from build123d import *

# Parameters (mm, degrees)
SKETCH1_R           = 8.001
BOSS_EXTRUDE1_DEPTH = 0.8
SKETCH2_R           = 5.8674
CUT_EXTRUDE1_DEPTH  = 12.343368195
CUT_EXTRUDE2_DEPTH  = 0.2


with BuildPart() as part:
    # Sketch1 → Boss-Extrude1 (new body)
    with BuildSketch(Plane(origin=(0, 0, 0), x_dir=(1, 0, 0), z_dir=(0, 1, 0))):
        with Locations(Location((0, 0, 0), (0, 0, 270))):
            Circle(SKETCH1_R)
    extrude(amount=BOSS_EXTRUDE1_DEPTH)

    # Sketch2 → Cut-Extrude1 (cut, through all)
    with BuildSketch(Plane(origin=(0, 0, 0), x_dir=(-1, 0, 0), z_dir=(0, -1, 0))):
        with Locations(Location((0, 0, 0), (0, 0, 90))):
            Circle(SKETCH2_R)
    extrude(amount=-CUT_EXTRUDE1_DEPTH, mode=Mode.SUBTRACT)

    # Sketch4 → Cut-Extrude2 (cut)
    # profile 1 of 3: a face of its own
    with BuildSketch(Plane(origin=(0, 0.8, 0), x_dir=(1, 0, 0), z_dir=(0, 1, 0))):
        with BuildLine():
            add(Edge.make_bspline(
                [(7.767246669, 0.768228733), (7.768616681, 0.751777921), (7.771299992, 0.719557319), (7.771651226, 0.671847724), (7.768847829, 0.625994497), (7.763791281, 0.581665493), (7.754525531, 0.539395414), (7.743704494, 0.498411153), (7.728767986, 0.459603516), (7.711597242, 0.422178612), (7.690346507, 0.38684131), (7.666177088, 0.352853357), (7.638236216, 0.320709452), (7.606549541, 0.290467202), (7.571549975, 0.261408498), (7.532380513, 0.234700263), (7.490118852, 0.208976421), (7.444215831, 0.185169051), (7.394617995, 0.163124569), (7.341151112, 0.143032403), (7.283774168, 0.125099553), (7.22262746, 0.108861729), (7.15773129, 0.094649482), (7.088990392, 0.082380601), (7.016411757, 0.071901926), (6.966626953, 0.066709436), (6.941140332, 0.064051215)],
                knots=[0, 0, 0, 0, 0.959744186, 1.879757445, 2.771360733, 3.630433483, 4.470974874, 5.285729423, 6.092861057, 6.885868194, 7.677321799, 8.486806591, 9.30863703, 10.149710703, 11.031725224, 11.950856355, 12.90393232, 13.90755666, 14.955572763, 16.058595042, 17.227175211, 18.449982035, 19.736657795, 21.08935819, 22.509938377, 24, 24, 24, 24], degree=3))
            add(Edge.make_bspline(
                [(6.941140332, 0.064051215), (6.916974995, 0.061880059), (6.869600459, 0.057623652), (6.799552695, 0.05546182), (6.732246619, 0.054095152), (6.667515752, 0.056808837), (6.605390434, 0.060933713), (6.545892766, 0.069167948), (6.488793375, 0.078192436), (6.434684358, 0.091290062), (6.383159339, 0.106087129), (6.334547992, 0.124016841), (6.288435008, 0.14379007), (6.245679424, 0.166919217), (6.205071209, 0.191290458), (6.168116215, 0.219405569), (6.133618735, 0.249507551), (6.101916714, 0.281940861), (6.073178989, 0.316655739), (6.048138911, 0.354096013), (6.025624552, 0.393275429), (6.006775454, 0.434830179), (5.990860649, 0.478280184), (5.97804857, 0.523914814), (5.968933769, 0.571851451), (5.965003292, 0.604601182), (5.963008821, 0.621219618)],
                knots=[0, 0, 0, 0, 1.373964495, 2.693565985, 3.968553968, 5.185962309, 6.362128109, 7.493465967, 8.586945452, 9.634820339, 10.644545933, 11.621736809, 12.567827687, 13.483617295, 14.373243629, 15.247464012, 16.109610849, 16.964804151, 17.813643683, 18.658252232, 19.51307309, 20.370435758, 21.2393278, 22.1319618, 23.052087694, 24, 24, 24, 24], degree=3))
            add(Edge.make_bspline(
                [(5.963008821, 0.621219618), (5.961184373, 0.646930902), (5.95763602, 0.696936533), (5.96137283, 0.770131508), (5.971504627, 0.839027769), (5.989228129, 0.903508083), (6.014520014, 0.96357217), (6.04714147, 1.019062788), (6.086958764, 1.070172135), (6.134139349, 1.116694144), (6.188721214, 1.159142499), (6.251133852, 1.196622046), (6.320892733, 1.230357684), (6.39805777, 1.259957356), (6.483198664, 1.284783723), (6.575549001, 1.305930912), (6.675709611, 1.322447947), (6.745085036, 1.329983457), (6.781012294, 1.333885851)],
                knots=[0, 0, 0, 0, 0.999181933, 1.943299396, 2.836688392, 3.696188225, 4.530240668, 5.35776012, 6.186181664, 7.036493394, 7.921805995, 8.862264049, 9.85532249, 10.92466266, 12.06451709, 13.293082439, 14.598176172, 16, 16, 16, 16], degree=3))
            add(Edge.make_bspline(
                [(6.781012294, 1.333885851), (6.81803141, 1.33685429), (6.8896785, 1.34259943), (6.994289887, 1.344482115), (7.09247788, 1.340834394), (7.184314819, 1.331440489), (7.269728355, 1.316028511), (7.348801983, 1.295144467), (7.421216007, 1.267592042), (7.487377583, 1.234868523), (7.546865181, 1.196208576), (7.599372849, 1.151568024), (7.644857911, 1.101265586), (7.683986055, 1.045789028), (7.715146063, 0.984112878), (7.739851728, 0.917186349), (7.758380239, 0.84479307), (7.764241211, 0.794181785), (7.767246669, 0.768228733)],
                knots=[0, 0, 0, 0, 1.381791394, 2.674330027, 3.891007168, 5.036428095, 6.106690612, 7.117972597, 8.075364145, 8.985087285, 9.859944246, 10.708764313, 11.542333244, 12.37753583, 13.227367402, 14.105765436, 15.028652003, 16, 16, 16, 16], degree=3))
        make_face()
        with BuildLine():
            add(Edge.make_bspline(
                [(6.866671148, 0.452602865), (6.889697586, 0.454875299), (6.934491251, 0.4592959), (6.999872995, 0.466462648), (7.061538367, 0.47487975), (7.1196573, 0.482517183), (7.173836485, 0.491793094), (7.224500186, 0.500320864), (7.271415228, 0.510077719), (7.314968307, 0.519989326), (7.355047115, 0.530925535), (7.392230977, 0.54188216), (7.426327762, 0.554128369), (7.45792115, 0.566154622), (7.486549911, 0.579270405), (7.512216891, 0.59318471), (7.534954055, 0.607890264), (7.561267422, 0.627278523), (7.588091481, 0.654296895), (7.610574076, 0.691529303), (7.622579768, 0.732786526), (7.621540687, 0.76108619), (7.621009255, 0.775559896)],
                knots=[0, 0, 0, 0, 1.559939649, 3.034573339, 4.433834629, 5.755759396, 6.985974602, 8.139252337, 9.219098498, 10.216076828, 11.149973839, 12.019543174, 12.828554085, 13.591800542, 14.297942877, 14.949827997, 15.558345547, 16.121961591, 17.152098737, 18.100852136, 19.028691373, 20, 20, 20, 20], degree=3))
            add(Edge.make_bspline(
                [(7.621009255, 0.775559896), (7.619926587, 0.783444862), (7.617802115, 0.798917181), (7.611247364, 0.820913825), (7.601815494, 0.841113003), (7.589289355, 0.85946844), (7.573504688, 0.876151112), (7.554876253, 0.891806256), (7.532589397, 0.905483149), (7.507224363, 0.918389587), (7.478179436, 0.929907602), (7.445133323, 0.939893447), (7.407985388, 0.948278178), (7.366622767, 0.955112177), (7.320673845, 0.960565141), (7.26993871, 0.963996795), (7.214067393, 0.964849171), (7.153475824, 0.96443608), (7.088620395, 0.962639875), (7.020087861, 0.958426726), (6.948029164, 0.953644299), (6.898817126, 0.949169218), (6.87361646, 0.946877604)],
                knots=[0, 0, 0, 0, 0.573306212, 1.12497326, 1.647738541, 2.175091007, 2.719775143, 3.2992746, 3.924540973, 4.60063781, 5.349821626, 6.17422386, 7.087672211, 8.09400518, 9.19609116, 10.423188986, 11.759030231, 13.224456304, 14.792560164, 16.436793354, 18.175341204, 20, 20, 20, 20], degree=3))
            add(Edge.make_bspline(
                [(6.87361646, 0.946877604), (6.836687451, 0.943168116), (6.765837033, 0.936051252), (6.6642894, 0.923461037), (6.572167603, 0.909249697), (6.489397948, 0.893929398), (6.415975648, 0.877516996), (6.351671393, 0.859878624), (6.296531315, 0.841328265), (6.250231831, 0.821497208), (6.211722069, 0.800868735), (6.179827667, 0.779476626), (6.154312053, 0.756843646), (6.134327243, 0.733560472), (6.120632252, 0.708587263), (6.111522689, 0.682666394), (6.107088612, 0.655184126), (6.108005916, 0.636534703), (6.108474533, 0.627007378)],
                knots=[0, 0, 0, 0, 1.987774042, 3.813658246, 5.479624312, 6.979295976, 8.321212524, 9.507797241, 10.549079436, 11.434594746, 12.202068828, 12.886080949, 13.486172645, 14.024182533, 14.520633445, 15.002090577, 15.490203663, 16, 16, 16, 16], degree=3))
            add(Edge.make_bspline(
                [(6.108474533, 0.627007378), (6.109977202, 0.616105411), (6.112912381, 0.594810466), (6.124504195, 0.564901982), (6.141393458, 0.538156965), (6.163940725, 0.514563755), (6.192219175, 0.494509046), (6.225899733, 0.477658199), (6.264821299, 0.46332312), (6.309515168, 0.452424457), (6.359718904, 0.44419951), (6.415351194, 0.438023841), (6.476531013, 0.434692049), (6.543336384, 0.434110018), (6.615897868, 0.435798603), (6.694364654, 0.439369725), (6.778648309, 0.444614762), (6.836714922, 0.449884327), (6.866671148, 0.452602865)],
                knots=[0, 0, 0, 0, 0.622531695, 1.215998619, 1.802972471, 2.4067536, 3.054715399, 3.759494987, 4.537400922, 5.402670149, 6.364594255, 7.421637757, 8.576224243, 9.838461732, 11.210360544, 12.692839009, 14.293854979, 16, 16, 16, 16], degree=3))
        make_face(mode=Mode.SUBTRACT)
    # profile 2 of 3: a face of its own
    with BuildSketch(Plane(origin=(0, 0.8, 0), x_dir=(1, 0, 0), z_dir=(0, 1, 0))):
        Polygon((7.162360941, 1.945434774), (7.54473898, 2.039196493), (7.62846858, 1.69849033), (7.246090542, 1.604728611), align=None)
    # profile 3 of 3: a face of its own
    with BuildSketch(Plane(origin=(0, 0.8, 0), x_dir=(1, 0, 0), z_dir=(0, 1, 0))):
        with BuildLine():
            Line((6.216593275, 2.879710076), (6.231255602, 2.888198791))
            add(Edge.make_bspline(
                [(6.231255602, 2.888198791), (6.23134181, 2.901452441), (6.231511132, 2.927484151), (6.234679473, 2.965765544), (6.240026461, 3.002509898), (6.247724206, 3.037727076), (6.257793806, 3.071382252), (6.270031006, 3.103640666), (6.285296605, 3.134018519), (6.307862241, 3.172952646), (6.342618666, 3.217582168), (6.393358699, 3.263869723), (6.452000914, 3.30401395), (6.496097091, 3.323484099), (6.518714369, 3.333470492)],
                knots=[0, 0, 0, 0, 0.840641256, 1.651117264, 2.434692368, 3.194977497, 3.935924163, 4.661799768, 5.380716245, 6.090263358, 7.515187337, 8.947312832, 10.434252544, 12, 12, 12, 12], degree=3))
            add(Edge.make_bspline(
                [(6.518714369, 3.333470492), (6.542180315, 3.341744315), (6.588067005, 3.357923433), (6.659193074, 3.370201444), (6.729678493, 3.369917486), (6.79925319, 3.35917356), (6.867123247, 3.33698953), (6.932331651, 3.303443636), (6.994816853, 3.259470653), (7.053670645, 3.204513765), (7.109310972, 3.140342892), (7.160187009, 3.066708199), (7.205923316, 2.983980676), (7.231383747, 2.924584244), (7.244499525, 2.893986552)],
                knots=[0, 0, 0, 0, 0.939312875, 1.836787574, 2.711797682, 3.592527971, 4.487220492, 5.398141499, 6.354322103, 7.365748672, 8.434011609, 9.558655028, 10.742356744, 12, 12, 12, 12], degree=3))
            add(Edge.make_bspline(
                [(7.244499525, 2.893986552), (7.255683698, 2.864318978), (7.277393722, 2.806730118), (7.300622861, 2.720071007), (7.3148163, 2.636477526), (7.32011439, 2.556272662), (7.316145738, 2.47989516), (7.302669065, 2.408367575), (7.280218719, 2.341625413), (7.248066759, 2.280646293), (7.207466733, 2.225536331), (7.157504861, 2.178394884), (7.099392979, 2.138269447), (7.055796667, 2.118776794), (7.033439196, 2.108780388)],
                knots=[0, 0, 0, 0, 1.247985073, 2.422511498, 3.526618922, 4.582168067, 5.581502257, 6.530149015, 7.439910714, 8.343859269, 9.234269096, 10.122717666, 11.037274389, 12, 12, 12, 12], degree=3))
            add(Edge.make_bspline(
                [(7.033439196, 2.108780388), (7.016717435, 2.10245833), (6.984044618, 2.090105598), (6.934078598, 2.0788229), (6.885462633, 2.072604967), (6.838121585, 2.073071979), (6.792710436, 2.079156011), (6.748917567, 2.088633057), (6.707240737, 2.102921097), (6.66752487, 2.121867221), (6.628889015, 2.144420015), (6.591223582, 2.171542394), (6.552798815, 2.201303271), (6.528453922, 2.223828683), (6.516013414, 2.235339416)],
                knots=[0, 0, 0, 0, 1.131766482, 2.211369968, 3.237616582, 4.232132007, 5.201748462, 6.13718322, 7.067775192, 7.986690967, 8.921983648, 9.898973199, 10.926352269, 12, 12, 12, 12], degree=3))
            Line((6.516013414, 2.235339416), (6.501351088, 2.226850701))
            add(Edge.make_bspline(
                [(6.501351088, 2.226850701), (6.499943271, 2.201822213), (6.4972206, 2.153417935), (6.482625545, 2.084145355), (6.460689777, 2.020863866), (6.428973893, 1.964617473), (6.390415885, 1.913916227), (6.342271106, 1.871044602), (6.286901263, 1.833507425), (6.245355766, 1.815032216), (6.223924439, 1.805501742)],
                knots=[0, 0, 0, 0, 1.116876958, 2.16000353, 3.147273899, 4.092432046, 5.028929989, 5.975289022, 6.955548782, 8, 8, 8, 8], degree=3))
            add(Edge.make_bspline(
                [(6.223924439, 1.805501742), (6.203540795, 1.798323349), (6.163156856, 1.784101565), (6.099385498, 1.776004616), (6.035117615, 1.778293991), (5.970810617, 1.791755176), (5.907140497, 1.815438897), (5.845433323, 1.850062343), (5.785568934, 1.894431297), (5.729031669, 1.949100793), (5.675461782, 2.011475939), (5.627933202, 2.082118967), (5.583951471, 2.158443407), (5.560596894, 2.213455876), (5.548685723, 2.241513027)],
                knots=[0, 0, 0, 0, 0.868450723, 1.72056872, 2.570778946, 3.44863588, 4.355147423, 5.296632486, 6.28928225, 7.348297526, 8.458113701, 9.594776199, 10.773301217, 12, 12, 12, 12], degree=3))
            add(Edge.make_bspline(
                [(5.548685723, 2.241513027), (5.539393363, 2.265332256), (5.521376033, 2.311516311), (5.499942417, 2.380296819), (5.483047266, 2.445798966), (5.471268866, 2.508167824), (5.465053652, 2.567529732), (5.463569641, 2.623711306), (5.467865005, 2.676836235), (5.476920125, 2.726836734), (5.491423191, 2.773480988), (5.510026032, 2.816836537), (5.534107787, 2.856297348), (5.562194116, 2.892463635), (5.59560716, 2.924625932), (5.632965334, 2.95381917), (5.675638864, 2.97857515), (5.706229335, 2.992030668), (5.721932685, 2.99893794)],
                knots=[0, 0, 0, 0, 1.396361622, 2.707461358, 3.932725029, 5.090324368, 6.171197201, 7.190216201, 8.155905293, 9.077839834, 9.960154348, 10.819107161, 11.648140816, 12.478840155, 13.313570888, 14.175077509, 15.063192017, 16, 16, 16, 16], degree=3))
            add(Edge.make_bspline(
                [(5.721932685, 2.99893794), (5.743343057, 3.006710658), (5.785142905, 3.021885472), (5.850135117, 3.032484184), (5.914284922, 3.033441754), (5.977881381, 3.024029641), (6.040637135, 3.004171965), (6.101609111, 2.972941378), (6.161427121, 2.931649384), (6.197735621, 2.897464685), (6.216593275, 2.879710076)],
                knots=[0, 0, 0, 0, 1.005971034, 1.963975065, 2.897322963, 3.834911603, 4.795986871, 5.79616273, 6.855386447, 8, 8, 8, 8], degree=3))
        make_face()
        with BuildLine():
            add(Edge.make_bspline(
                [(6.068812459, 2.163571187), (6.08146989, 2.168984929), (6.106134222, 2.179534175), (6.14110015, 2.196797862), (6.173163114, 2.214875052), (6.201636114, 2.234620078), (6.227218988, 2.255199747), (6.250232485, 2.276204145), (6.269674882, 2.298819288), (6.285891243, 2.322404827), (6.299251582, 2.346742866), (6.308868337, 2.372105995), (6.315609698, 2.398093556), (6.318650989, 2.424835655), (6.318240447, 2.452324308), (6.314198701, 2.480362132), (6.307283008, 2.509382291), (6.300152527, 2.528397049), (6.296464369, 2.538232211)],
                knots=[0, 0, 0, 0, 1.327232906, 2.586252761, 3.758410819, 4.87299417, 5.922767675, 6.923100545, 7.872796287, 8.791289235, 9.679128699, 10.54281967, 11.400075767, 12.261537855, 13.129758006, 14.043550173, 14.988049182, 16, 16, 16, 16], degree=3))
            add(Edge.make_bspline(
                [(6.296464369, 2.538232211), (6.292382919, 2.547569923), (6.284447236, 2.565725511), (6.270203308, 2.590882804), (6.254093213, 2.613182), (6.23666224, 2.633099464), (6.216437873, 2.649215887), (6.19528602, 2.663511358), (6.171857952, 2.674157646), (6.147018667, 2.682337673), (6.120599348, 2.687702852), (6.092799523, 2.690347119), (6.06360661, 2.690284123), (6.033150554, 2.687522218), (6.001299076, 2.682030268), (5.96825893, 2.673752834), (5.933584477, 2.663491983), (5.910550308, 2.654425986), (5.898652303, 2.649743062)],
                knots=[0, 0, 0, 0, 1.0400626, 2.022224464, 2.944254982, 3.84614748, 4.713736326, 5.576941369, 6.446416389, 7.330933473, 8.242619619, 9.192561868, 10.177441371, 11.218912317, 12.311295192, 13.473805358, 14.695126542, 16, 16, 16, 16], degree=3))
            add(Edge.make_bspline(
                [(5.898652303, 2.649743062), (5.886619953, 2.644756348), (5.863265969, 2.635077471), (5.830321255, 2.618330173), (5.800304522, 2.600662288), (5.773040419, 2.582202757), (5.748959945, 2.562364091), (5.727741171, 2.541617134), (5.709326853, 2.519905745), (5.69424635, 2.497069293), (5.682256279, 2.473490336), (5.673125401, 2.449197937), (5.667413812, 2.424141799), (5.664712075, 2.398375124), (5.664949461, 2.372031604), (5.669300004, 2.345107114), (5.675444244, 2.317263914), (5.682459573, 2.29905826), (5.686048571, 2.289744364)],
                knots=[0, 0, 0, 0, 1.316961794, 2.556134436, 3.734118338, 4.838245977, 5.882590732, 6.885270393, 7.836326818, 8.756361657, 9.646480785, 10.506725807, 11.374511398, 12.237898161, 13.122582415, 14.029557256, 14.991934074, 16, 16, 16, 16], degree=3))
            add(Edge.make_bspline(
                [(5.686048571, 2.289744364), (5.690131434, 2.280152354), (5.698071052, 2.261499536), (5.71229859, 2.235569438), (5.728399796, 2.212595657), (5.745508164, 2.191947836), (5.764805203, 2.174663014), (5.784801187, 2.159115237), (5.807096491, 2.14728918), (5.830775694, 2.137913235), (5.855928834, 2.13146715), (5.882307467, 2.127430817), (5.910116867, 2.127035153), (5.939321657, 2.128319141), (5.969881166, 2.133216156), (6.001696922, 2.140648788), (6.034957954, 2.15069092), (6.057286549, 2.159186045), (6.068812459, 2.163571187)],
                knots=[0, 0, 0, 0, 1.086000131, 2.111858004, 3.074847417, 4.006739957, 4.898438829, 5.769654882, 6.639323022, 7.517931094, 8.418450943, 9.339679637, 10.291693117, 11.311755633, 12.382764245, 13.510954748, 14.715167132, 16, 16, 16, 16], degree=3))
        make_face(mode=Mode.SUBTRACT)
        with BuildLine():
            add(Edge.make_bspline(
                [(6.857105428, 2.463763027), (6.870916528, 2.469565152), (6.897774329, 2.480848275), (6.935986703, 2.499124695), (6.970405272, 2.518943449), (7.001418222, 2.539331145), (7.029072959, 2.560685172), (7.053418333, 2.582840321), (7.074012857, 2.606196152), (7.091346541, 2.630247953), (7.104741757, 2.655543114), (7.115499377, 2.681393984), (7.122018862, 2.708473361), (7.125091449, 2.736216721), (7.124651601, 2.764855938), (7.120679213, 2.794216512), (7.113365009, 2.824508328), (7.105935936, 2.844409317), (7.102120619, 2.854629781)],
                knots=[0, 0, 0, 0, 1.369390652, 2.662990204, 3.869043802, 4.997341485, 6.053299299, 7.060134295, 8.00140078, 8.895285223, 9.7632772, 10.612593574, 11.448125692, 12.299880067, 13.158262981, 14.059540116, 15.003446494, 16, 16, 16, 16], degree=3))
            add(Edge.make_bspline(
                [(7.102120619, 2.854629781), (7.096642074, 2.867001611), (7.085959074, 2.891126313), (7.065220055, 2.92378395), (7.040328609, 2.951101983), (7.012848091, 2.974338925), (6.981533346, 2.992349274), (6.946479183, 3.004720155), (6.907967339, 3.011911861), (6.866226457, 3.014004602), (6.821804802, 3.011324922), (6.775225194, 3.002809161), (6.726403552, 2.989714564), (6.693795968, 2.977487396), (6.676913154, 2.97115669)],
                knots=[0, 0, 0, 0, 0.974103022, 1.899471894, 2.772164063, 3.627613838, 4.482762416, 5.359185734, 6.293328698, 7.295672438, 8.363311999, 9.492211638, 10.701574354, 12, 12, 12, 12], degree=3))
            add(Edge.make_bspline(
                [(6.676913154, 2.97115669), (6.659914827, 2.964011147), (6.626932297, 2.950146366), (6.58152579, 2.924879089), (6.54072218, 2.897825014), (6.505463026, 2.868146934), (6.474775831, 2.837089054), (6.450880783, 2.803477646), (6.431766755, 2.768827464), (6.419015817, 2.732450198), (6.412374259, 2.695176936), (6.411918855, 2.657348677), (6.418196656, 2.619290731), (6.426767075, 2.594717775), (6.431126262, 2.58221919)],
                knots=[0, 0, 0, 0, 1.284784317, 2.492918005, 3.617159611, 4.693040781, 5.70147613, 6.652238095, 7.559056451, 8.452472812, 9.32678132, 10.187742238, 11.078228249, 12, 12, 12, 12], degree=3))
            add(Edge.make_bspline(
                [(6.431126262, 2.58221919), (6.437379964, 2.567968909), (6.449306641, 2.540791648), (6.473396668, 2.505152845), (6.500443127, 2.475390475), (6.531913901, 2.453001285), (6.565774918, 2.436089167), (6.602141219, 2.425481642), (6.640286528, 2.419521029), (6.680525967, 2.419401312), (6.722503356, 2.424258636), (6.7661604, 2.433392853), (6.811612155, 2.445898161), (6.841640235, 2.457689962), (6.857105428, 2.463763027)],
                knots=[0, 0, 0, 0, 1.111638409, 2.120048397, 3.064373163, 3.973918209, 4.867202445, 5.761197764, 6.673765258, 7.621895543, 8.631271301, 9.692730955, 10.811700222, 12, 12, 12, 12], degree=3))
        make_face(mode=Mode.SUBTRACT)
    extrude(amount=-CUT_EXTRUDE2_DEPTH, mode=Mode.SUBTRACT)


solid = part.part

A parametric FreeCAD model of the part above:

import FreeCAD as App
import Part
import Sketcher
Q = App.Units.Quantity

doc = App.newDocument("Part")
body = doc.addObject("PartDesign::Body", "Body")

# Sketch on XZ plane
sketch1 = doc.addObject("Sketcher::SketchObject", "Sketch")
body.addObject(sketch1)
sketch1.AttachmentSupport = (doc.XZ_Plane, [""])
sketch1.MapMode = "FlatFace"
sketch1.addGeometry(Part.Circle(App.Vector(0, 0, 0), App.Vector(0, 0, 1), 8), False)
sketch1.addConstraint(Sketcher.Constraint("Coincident", 0, 3, -1, 1))
sketch1.addConstraint(Sketcher.Constraint("Diameter", 0, Q("16.002 mm")))
pad1 = doc.addObject("PartDesign::Pad", "Pad")
body.addObject(pad1)
pad1.Profile = sketch1
pad1.Length = 0.8
pad1.Reversed = True

# Sketch on XZ plane
sketch2 = doc.addObject("Sketcher::SketchObject", "Sketch001")
body.addObject(sketch2)
sketch2.AttachmentSupport = (doc.XZ_Plane, [""])
sketch2.MapMode = "FlatFace"
sketch2.addGeometry(Part.Circle(App.Vector(0, 0, 0), App.Vector(0, 0, 1), 6), False)
sketch2.addConstraint(Sketcher.Constraint("Coincident", 0, 3, -1, 1))
sketch2.addConstraint(Sketcher.Constraint("Diameter", 0, Q("11.7348 mm")))
pocket1 = doc.addObject("PartDesign::Pocket", "Pocket")
body.addObject(pocket1)
pocket1.Profile = sketch2
pocket1.Type = "ThroughAll"

# Sketch on XZ plane
sketch3 = doc.addObject("Sketcher::SketchObject", "Sketch002")
body.addObject(sketch3)
sketch3.AttachmentSupport = (doc.XZ_Plane, [""])
sketch3.MapMode = "FlatFace"
sketch3.AttachmentOffset = App.Placement(App.Vector(0, 0, -0.8), App.Rotation())
sketch3.addGeometry(Part.BSplineCurve([App.Vector(7.767247, -0.768229, 0), App.Vector(7.768617, -0.751778, 0), App.Vector(7.7713, -0.719557, 0), App.Vector(7.771651, -0.671848, 0), App.Vector(7.768848, -0.625994, 0), App.Vector(7.763791, -0.581665, 0), App.Vector(7.754526, -0.539395, 0), App.Vector(7.743704, -0.498411, 0), App.Vector(7.728768, -0.459604, 0), App.Vector(7.711597, -0.422179, 0), App.Vector(7.690347, -0.386841, 0), App.Vector(7.666177, -0.352853, 0), App.Vector(7.638236, -0.320709, 0), App.Vector(7.60655, -0.290467, 0), App.Vector(7.57155, -0.261408, 0), App.Vector(7.532381, -0.2347, 0), App.Vector(7.490119, -0.208976, 0), App.Vector(7.444216, -0.185169, 0), App.Vector(7.394618, -0.163125, 0), App.Vector(7.341151, -0.143032, 0), App.Vector(7.283774, -0.1251, 0), App.Vector(7.222627, -0.108862, 0), App.Vector(7.157731, -0.094649, 0), App.Vector(7.08899, -0.082381, 0), App.Vector(7.016412, -0.071902, 0), App.Vector(6.966627, -0.066709, 0), App.Vector(6.94114, -0.064051, 0)], [4, 1, 1, 1, 1, 1, 1, 1, 1, 1, 1, 1, 1, 1, 1, 1, 1, 1, 1, 1, 1, 1, 1, 1, 4], [0, 0.959744186, 1.879757445, 2.771360733, 3.630433483, 4.470974874, 5.285729423, 6.092861057, 6.885868194, 7.677321799, 8.486806591, 9.30863703, 10.149710703, 11.031725224, 11.950856355, 12.90393232, 13.90755666, 14.955572763, 16.058595042, 17.227175211, 18.449982035, 19.736657795, 21.08935819, 22.509938377, 24], False, 3, [1, 1, 1, 1, 1, 1, 1, 1, 1, 1, 1, 1, 1, 1, 1, 1, 1, 1, 1, 1, 1, 1, 1, 1, 1, 1, 1], False), False)
sketch3.addGeometry(Part.BSplineCurve([App.Vector(6.781012, -1.333886, 0), App.Vector(6.818031, -1.336854, 0), App.Vector(6.889678, -1.342599, 0), App.Vector(6.99429, -1.344482, 0), App.Vector(7.092478, -1.340834, 0), App.Vector(7.184315, -1.33144, 0), App.Vector(7.269728, -1.316029, 0), App.Vector(7.348802, -1.295144, 0), App.Vector(7.421216, -1.267592, 0), App.Vector(7.487378, -1.234869, 0), App.Vector(7.546865, -1.196209, 0), App.Vector(7.599373, -1.151568, 0), App.Vector(7.644858, -1.101266, 0), App.Vector(7.683986, -1.045789, 0), App.Vector(7.715146, -0.984113, 0), App.Vector(7.739852, -0.917186, 0), App.Vector(7.75838, -0.844793, 0), App.Vector(7.764241, -0.794182, 0), App.Vector(7.767247, -0.768229, 0)], [4, 1, 1, 1, 1, 1, 1, 1, 1, 1, 1, 1, 1, 1, 1, 1, 4], [0, 1.381791394, 2.674330027, 3.891007168, 5.036428095, 6.106690612, 7.117972597, 8.075364145, 8.985087285, 9.859944246, 10.708764313, 11.542333244, 12.37753583, 13.227367402, 14.105765436, 15.028652003, 16], False, 3, [1, 1, 1, 1, 1, 1, 1, 1, 1, 1, 1, 1, 1, 1, 1, 1, 1, 1, 1], False), False)
sketch3.addGeometry(Part.BSplineCurve([App.Vector(5.963009, -0.62122, 0), App.Vector(5.961184, -0.646931, 0), App.Vector(5.957636, -0.696937, 0), App.Vector(5.961373, -0.770132, 0), App.Vector(5.971505, -0.839028, 0), App.Vector(5.989228, -0.903508, 0), App.Vector(6.01452, -0.963572, 0), App.Vector(6.047141, -1.019063, 0), App.Vector(6.086959, -1.070172, 0), App.Vector(6.134139, -1.116694, 0), App.Vector(6.188721, -1.159142, 0), App.Vector(6.251134, -1.196622, 0), App.Vector(6.320893, -1.230358, 0), App.Vector(6.398058, -1.259957, 0), App.Vector(6.483199, -1.284784, 0), App.Vector(6.575549, -1.305931, 0), App.Vector(6.67571, -1.322448, 0), App.Vector(6.745085, -1.329983, 0), App.Vector(6.781012, -1.333886, 0)], [4, 1, 1, 1, 1, 1, 1, 1, 1, 1, 1, 1, 1, 1, 1, 1, 4], [0, 0.999181933, 1.943299396, 2.836688392, 3.696188225, 4.530240668, 5.35776012, 6.186181664, 7.036493394, 7.921805995, 8.862264049, 9.85532249, 10.92466266, 12.06451709, 13.293082439, 14.598176172, 16], False, 3, [1, 1, 1, 1, 1, 1, 1, 1, 1, 1, 1, 1, 1, 1, 1, 1, 1, 1, 1], False), False)
sketch3.addGeometry(Part.BSplineCurve([App.Vector(6.94114, -0.064051, 0), App.Vector(6.916975, -0.06188, 0), App.Vector(6.8696, -0.057624, 0), App.Vector(6.799553, -0.055462, 0), App.Vector(6.732247, -0.054095, 0), App.Vector(6.667516, -0.056809, 0), App.Vector(6.60539, -0.060934, 0), App.Vector(6.545893, -0.069168, 0), App.Vector(6.488793, -0.078192, 0), App.Vector(6.434684, -0.09129, 0), App.Vector(6.383159, -0.106087, 0), App.Vector(6.334548, -0.124017, 0), App.Vector(6.288435, -0.14379, 0), App.Vector(6.245679, -0.166919, 0), App.Vector(6.205071, -0.19129, 0), App.Vector(6.168116, -0.219406, 0), App.Vector(6.133619, -0.249508, 0), App.Vector(6.101917, -0.281941, 0), App.Vector(6.073179, -0.316656, 0), App.Vector(6.048139, -0.354096, 0), App.Vector(6.025625, -0.393275, 0), App.Vector(6.006775, -0.43483, 0), App.Vector(5.990861, -0.47828, 0), App.Vector(5.978049, -0.523915, 0), App.Vector(5.968934, -0.571851, 0), App.Vector(5.965003, -0.604601, 0), App.Vector(5.963009, -0.62122, 0)], [4, 1, 1, 1, 1, 1, 1, 1, 1, 1, 1, 1, 1, 1, 1, 1, 1, 1, 1, 1, 1, 1, 1, 1, 4], [0, 1.373964495, 2.693565985, 3.968553968, 5.185962309, 6.362128109, 7.493465967, 8.586945452, 9.634820339, 10.644545933, 11.621736809, 12.567827687, 13.483617295, 14.373243629, 15.247464012, 16.109610849, 16.964804151, 17.813643683, 18.658252232, 19.51307309, 20.370435758, 21.2393278, 22.1319618, 23.052087694, 24], False, 3, [1, 1, 1, 1, 1, 1, 1, 1, 1, 1, 1, 1, 1, 1, 1, 1, 1, 1, 1, 1, 1, 1, 1, 1, 1, 1, 1], False), False)
sketch3.addGeometry(Part.BSplineCurve([App.Vector(6.108475, -0.627007, 0), App.Vector(6.109977, -0.616105, 0), App.Vector(6.112912, -0.59481, 0), App.Vector(6.124504, -0.564902, 0), App.Vector(6.141393, -0.538157, 0), App.Vector(6.163941, -0.514564, 0), App.Vector(6.192219, -0.494509, 0), App.Vector(6.2259, -0.477658, 0), App.Vector(6.264821, -0.463323, 0), App.Vector(6.309515, -0.452424, 0), App.Vector(6.359719, -0.4442, 0), App.Vector(6.415351, -0.438024, 0), App.Vector(6.476531, -0.434692, 0), App.Vector(6.543336, -0.43411, 0), App.Vector(6.615898, -0.435799, 0), App.Vector(6.694365, -0.43937, 0), App.Vector(6.778648, -0.444615, 0), App.Vector(6.836715, -0.449884, 0), App.Vector(6.866671, -0.452603, 0)], [4, 1, 1, 1, 1, 1, 1, 1, 1, 1, 1, 1, 1, 1, 1, 1, 4], [0, 0.622531695, 1.215998619, 1.802972471, 2.4067536, 3.054715399, 3.759494987, 4.537400922, 5.402670149, 6.364594255, 7.421637757, 8.576224243, 9.838461732, 11.210360544, 12.692839009, 14.293854979, 16], False, 3, [1, 1, 1, 1, 1, 1, 1, 1, 1, 1, 1, 1, 1, 1, 1, 1, 1, 1, 1], False), False)
sketch3.addGeometry(Part.BSplineCurve([App.Vector(6.873616, -0.946878, 0), App.Vector(6.836687, -0.943168, 0), App.Vector(6.765837, -0.936051, 0), App.Vector(6.664289, -0.923461, 0), App.Vector(6.572168, -0.90925, 0), App.Vector(6.489398, -0.893929, 0), App.Vector(6.415976, -0.877517, 0), App.Vector(6.351671, -0.859879, 0), App.Vector(6.296531, -0.841328, 0), App.Vector(6.250232, -0.821497, 0), App.Vector(6.211722, -0.800869, 0), App.Vector(6.179828, -0.779477, 0), App.Vector(6.154312, -0.756844, 0), App.Vector(6.134327, -0.73356, 0), App.Vector(6.120632, -0.708587, 0), App.Vector(6.111523, -0.682666, 0), App.Vector(6.107089, -0.655184, 0), App.Vector(6.108006, -0.636535, 0), App.Vector(6.108475, -0.627007, 0)], [4, 1, 1, 1, 1, 1, 1, 1, 1, 1, 1, 1, 1, 1, 1, 1, 4], [0, 1.987774042, 3.813658246, 5.479624312, 6.979295976, 8.321212524, 9.507797241, 10.549079436, 11.434594746, 12.202068828, 12.886080949, 13.486172645, 14.024182533, 14.520633445, 15.002090577, 15.490203663, 16], False, 3, [1, 1, 1, 1, 1, 1, 1, 1, 1, 1, 1, 1, 1, 1, 1, 1, 1, 1, 1], False), False)
sketch3.addGeometry(Part.BSplineCurve([App.Vector(7.621009, -0.77556, 0), App.Vector(7.619927, -0.783445, 0), App.Vector(7.617802, -0.798917, 0), App.Vector(7.611247, -0.820914, 0), App.Vector(7.601815, -0.841113, 0), App.Vector(7.589289, -0.859468, 0), App.Vector(7.573505, -0.876151, 0), App.Vector(7.554876, -0.891806, 0), App.Vector(7.532589, -0.905483, 0), App.Vector(7.507224, -0.91839, 0), App.Vector(7.478179, -0.929908, 0), App.Vector(7.445133, -0.939893, 0), App.Vector(7.407985, -0.948278, 0), App.Vector(7.366623, -0.955112, 0), App.Vector(7.320674, -0.960565, 0), App.Vector(7.269939, -0.963997, 0), App.Vector(7.214067, -0.964849, 0), App.Vector(7.153476, -0.964436, 0), App.Vector(7.08862, -0.96264, 0), App.Vector(7.020088, -0.958427, 0), App.Vector(6.948029, -0.953644, 0), App.Vector(6.898817, -0.949169, 0), App.Vector(6.873616, -0.946878, 0)], [4, 1, 1, 1, 1, 1, 1, 1, 1, 1, 1, 1, 1, 1, 1, 1, 1, 1, 1, 1, 4], [0, 0.573306212, 1.12497326, 1.647738541, 2.175091007, 2.719775143, 3.2992746, 3.924540973, 4.60063781, 5.349821626, 6.17422386, 7.087672211, 8.09400518, 9.19609116, 10.423188986, 11.759030231, 13.224456304, 14.792560164, 16.436793354, 18.175341204, 20], False, 3, [1, 1, 1, 1, 1, 1, 1, 1, 1, 1, 1, 1, 1, 1, 1, 1, 1, 1, 1, 1, 1, 1, 1], False), False)
sketch3.addGeometry(Part.BSplineCurve([App.Vector(6.866671, -0.452603, 0), App.Vector(6.889698, -0.454875, 0), App.Vector(6.934491, -0.459296, 0), App.Vector(6.999873, -0.466463, 0), App.Vector(7.061538, -0.47488, 0), App.Vector(7.119657, -0.482517, 0), App.Vector(7.173836, -0.491793, 0), App.Vector(7.2245, -0.500321, 0), App.Vector(7.271415, -0.510078, 0), App.Vector(7.314968, -0.519989, 0), App.Vector(7.355047, -0.530926, 0), App.Vector(7.392231, -0.541882, 0), App.Vector(7.426328, -0.554128, 0), App.Vector(7.457921, -0.566155, 0), App.Vector(7.48655, -0.57927, 0), App.Vector(7.512217, -0.593185, 0), App.Vector(7.534954, -0.60789, 0), App.Vector(7.561267, -0.627279, 0), App.Vector(7.588091, -0.654297, 0), App.Vector(7.610574, -0.691529, 0), App.Vector(7.62258, -0.732787, 0), App.Vector(7.621541, -0.761086, 0), App.Vector(7.621009, -0.77556, 0)], [4, 1, 1, 1, 1, 1, 1, 1, 1, 1, 1, 1, 1, 1, 1, 1, 1, 1, 1, 1, 4], [0, 1.559939649, 3.034573339, 4.433834629, 5.755759396, 6.985974602, 8.139252337, 9.219098498, 10.216076828, 11.149973839, 12.019543174, 12.828554085, 13.591800542, 14.297942877, 14.949827997, 15.558345547, 16.121961591, 17.152098737, 18.100852136, 19.028691373, 20], False, 3, [1, 1, 1, 1, 1, 1, 1, 1, 1, 1, 1, 1, 1, 1, 1, 1, 1, 1, 1, 1, 1, 1, 1], False), False)
sketch3.addGeometry(Part.LineSegment(App.Vector(7.544739, -2.039196, 0), App.Vector(7.162361, -1.945435, 0)), False)
sketch3.addGeometry(Part.LineSegment(App.Vector(7.162361, -1.945435, 0), App.Vector(7.246091, -1.604729, 0)), False)
sketch3.addGeometry(Part.LineSegment(App.Vector(7.246091, -1.604729, 0), App.Vector(7.628469, -1.69849, 0)), False)
sketch3.addGeometry(Part.LineSegment(App.Vector(7.628469, -1.69849, 0), App.Vector(7.544739, -2.039196, 0)), False)
sketch3.addGeometry(Part.LineSegment(App.Vector(6.231256, -2.888199, 0), App.Vector(6.216593, -2.87971, 0)), False)
sketch3.addGeometry(Part.BSplineCurve([App.Vector(5.721933, -2.998938, 0), App.Vector(5.743343, -3.006711, 0), App.Vector(5.785143, -3.021885, 0), App.Vector(5.850135, -3.032484, 0), App.Vector(5.914285, -3.033442, 0), App.Vector(5.977881, -3.02403, 0), App.Vector(6.040637, -3.004172, 0), App.Vector(6.101609, -2.972941, 0), App.Vector(6.161427, -2.931649, 0), App.Vector(6.197736, -2.897465, 0), App.Vector(6.216593, -2.87971, 0)], [4, 1, 1, 1, 1, 1, 1, 1, 4], [0, 1.005971034, 1.963975065, 2.897322963, 3.834911603, 4.795986871, 5.79616273, 6.855386447, 8], False, 3, [1, 1, 1, 1, 1, 1, 1, 1, 1, 1, 1], False), False)
sketch3.addGeometry(Part.BSplineCurve([App.Vector(5.548686, -2.241513, 0), App.Vector(5.539393, -2.265332, 0), App.Vector(5.521376, -2.311516, 0), App.Vector(5.499942, -2.380297, 0), App.Vector(5.483047, -2.445799, 0), App.Vector(5.471269, -2.508168, 0), App.Vector(5.465054, -2.56753, 0), App.Vector(5.46357, -2.623711, 0), App.Vector(5.467865, -2.676836, 0), App.Vector(5.47692, -2.726837, 0), App.Vector(5.491423, -2.773481, 0), App.Vector(5.510026, -2.816837, 0), App.Vector(5.534108, -2.856297, 0), App.Vector(5.562194, -2.892464, 0), App.Vector(5.595607, -2.924626, 0), App.Vector(5.632965, -2.953819, 0), App.Vector(5.675639, -2.978575, 0), App.Vector(5.706229, -2.992031, 0), App.Vector(5.721933, -2.998938, 0)], [4, 1, 1, 1, 1, 1, 1, 1, 1, 1, 1, 1, 1, 1, 1, 1, 4], [0, 1.396361622, 2.707461358, 3.932725029, 5.090324368, 6.171197201, 7.190216201, 8.155905293, 9.077839834, 9.960154348, 10.819107161, 11.648140816, 12.478840155, 13.313570888, 14.175077509, 15.063192017, 16], False, 3, [1, 1, 1, 1, 1, 1, 1, 1, 1, 1, 1, 1, 1, 1, 1, 1, 1, 1, 1], False), False)
sketch3.addGeometry(Part.BSplineCurve([App.Vector(6.223924, -1.805502, 0), App.Vector(6.203541, -1.798323, 0), App.Vector(6.163157, -1.784102, 0), App.Vector(6.099385, -1.776005, 0), App.Vector(6.035118, -1.778294, 0), App.Vector(5.970811, -1.791755, 0), App.Vector(5.90714, -1.815439, 0), App.Vector(5.845433, -1.850062, 0), App.Vector(5.785569, -1.894431, 0), App.Vector(5.729032, -1.949101, 0), App.Vector(5.675462, -2.011476, 0), App.Vector(5.627933, -2.082119, 0), App.Vector(5.583951, -2.158443, 0), App.Vector(5.560597, -2.213456, 0), App.Vector(5.548686, -2.241513, 0)], [4, 1, 1, 1, 1, 1, 1, 1, 1, 1, 1, 1, 4], [0, 0.868450723, 1.72056872, 2.570778946, 3.44863588, 4.355147423, 5.296632486, 6.28928225, 7.348297526, 8.458113701, 9.594776199, 10.773301217, 12], False, 3, [1, 1, 1, 1, 1, 1, 1, 1, 1, 1, 1, 1, 1, 1, 1], False), False)
sketch3.addGeometry(Part.BSplineCurve([App.Vector(6.501351, -2.226851, 0), App.Vector(6.499943, -2.201822, 0), App.Vector(6.497221, -2.153418, 0), App.Vector(6.482626, -2.084145, 0), App.Vector(6.46069, -2.020864, 0), App.Vector(6.428974, -1.964617, 0), App.Vector(6.390416, -1.913916, 0), App.Vector(6.342271, -1.871045, 0), App.Vector(6.286901, -1.833507, 0), App.Vector(6.245356, -1.815032, 0), App.Vector(6.223924, -1.805502, 0)], [4, 1, 1, 1, 1, 1, 1, 1, 4], [0, 1.116876958, 2.16000353, 3.147273899, 4.092432046, 5.028929989, 5.975289022, 6.955548782, 8], False, 3, [1, 1, 1, 1, 1, 1, 1, 1, 1, 1, 1], False), False)
sketch3.addGeometry(Part.LineSegment(App.Vector(6.501351, -2.226851, 0), App.Vector(6.516013, -2.235339, 0)), False)
sketch3.addGeometry(Part.BSplineCurve([App.Vector(7.033439, -2.10878, 0), App.Vector(7.016717, -2.102458, 0), App.Vector(6.984045, -2.090106, 0), App.Vector(6.934079, -2.078823, 0), App.Vector(6.885463, -2.072605, 0), App.Vector(6.838122, -2.073072, 0), App.Vector(6.79271, -2.079156, 0), App.Vector(6.748918, -2.088633, 0), App.Vector(6.707241, -2.102921, 0), App.Vector(6.667525, -2.121867, 0), App.Vector(6.628889, -2.14442, 0), App.Vector(6.591224, -2.171542, 0), App.Vector(6.552799, -2.201303, 0), App.Vector(6.528454, -2.223829, 0), App.Vector(6.516013, -2.235339, 0)], [4, 1, 1, 1, 1, 1, 1, 1, 1, 1, 1, 1, 4], [0, 1.131766482, 2.211369968, 3.237616582, 4.232132007, 5.201748462, 6.13718322, 7.067775192, 7.986690967, 8.921983648, 9.898973199, 10.926352269, 12], False, 3, [1, 1, 1, 1, 1, 1, 1, 1, 1, 1, 1, 1, 1, 1, 1], False), False)
sketch3.addGeometry(Part.BSplineCurve([App.Vector(7.2445, -2.893987, 0), App.Vector(7.255684, -2.864319, 0), App.Vector(7.277394, -2.80673, 0), App.Vector(7.300623, -2.720071, 0), App.Vector(7.314816, -2.636478, 0), App.Vector(7.320114, -2.556273, 0), App.Vector(7.316146, -2.479895, 0), App.Vector(7.302669, -2.408368, 0), App.Vector(7.280219, -2.341625, 0), App.Vector(7.248067, -2.280646, 0), App.Vector(7.207467, -2.225536, 0), App.Vector(7.157505, -2.178395, 0), App.Vector(7.099393, -2.138269, 0), App.Vector(7.055797, -2.118777, 0), App.Vector(7.033439, -2.10878, 0)], [4, 1, 1, 1, 1, 1, 1, 1, 1, 1, 1, 1, 4], [0, 1.247985073, 2.422511498, 3.526618922, 4.582168067, 5.581502257, 6.530149015, 7.439910714, 8.343859269, 9.234269096, 10.122717666, 11.037274389, 12], False, 3, [1, 1, 1, 1, 1, 1, 1, 1, 1, 1, 1, 1, 1, 1, 1], False), False)
sketch3.addGeometry(Part.BSplineCurve([App.Vector(6.518714, -3.33347, 0), App.Vector(6.54218, -3.341744, 0), App.Vector(6.588067, -3.357923, 0), App.Vector(6.659193, -3.370201, 0), App.Vector(6.729678, -3.369917, 0), App.Vector(6.799253, -3.359174, 0), App.Vector(6.867123, -3.33699, 0), App.Vector(6.932332, -3.303444, 0), App.Vector(6.994817, -3.259471, 0), App.Vector(7.053671, -3.204514, 0), App.Vector(7.109311, -3.140343, 0), App.Vector(7.160187, -3.066708, 0), App.Vector(7.205923, -2.983981, 0), App.Vector(7.231384, -2.924584, 0), App.Vector(7.2445, -2.893987, 0)], [4, 1, 1, 1, 1, 1, 1, 1, 1, 1, 1, 1, 4], [0, 0.939312875, 1.836787574, 2.711797682, 3.592527971, 4.487220492, 5.398141499, 6.354322103, 7.365748672, 8.434011609, 9.558655028, 10.742356744, 12], False, 3, [1, 1, 1, 1, 1, 1, 1, 1, 1, 1, 1, 1, 1, 1, 1], False), False)
sketch3.addGeometry(Part.BSplineCurve([App.Vector(6.231256, -2.888199, 0), App.Vector(6.231342, -2.901452, 0), App.Vector(6.231511, -2.927484, 0), App.Vector(6.234679, -2.965766, 0), App.Vector(6.240026, -3.00251, 0), App.Vector(6.247724, -3.037727, 0), App.Vector(6.257794, -3.071382, 0), App.Vector(6.270031, -3.103641, 0), App.Vector(6.285297, -3.134019, 0), App.Vector(6.307862, -3.172953, 0), App.Vector(6.342619, -3.217582, 0), App.Vector(6.393359, -3.26387, 0), App.Vector(6.452001, -3.304014, 0), App.Vector(6.496097, -3.323484, 0), App.Vector(6.518714, -3.33347, 0)], [4, 1, 1, 1, 1, 1, 1, 1, 1, 1, 1, 1, 4], [0, 0.840641256, 1.651117264, 2.434692368, 3.194977497, 3.935924163, 4.661799768, 5.380716245, 6.090263358, 7.515187337, 8.947312832, 10.434252544, 12], False, 3, [1, 1, 1, 1, 1, 1, 1, 1, 1, 1, 1, 1, 1, 1, 1], False), False)
sketch3.addGeometry(Part.BSplineCurve([App.Vector(5.686049, -2.289744, 0), App.Vector(5.690131, -2.280152, 0), App.Vector(5.698071, -2.2615, 0), App.Vector(5.712299, -2.235569, 0), App.Vector(5.7284, -2.212596, 0), App.Vector(5.745508, -2.191948, 0), App.Vector(5.764805, -2.174663, 0), App.Vector(5.784801, -2.159115, 0), App.Vector(5.807096, -2.147289, 0), App.Vector(5.830776, -2.137913, 0), App.Vector(5.855929, -2.131467, 0), App.Vector(5.882307, -2.127431, 0), App.Vector(5.910117, -2.127035, 0), App.Vector(5.939322, -2.128319, 0), App.Vector(5.969881, -2.133216, 0), App.Vector(6.001697, -2.140649, 0), App.Vector(6.034958, -2.150691, 0), App.Vector(6.057287, -2.159186, 0), App.Vector(6.068812, -2.163571, 0)], [4, 1, 1, 1, 1, 1, 1, 1, 1, 1, 1, 1, 1, 1, 1, 1, 4], [0, 1.086000131, 2.111858004, 3.074847417, 4.006739957, 4.898438829, 5.769654882, 6.639323022, 7.517931094, 8.418450943, 9.339679637, 10.291693117, 11.311755633, 12.382764245, 13.510954748, 14.715167132, 16], False, 3, [1, 1, 1, 1, 1, 1, 1, 1, 1, 1, 1, 1, 1, 1, 1, 1, 1, 1, 1], False), False)
sketch3.addGeometry(Part.BSplineCurve([App.Vector(5.898652, -2.649743, 0), App.Vector(5.88662, -2.644756, 0), App.Vector(5.863266, -2.635077, 0), App.Vector(5.830321, -2.61833, 0), App.Vector(5.800305, -2.600662, 0), App.Vector(5.77304, -2.582203, 0), App.Vector(5.74896, -2.562364, 0), App.Vector(5.727741, -2.541617, 0), App.Vector(5.709327, -2.519906, 0), App.Vector(5.694246, -2.497069, 0), App.Vector(5.682256, -2.47349, 0), App.Vector(5.673125, -2.449198, 0), App.Vector(5.667414, -2.424142, 0), App.Vector(5.664712, -2.398375, 0), App.Vector(5.664949, -2.372032, 0), App.Vector(5.6693, -2.345107, 0), App.Vector(5.675444, -2.317264, 0), App.Vector(5.68246, -2.299058, 0), App.Vector(5.686049, -2.289744, 0)], [4, 1, 1, 1, 1, 1, 1, 1, 1, 1, 1, 1, 1, 1, 1, 1, 4], [0, 1.316961794, 2.556134436, 3.734118338, 4.838245977, 5.882590732, 6.885270393, 7.836326818, 8.756361657, 9.646480785, 10.506725807, 11.374511398, 12.237898161, 13.122582415, 14.029557256, 14.991934074, 16], False, 3, [1, 1, 1, 1, 1, 1, 1, 1, 1, 1, 1, 1, 1, 1, 1, 1, 1, 1, 1], False), False)
sketch3.addGeometry(Part.BSplineCurve([App.Vector(6.296464, -2.538232, 0), App.Vector(6.292383, -2.54757, 0), App.Vector(6.284447, -2.565726, 0), App.Vector(6.270203, -2.590883, 0), App.Vector(6.254093, -2.613182, 0), App.Vector(6.236662, -2.633099, 0), App.Vector(6.216438, -2.649216, 0), App.Vector(6.195286, -2.663511, 0), App.Vector(6.171858, -2.674158, 0), App.Vector(6.147019, -2.682338, 0), App.Vector(6.120599, -2.687703, 0), App.Vector(6.0928, -2.690347, 0), App.Vector(6.063607, -2.690284, 0), App.Vector(6.033151, -2.687522, 0), App.Vector(6.001299, -2.68203, 0), App.Vector(5.968259, -2.673753, 0), App.Vector(5.933584, -2.663492, 0), App.Vector(5.91055, -2.654426, 0), App.Vector(5.898652, -2.649743, 0)], [4, 1, 1, 1, 1, 1, 1, 1, 1, 1, 1, 1, 1, 1, 1, 1, 4], [0, 1.0400626, 2.022224464, 2.944254982, 3.84614748, 4.713736326, 5.576941369, 6.446416389, 7.330933473, 8.242619619, 9.192561868, 10.177441371, 11.218912317, 12.311295192, 13.473805358, 14.695126542, 16], False, 3, [1, 1, 1, 1, 1, 1, 1, 1, 1, 1, 1, 1, 1, 1, 1, 1, 1, 1, 1], False), False)
sketch3.addGeometry(Part.BSplineCurve([App.Vector(6.068812, -2.163571, 0), App.Vector(6.08147, -2.168985, 0), App.Vector(6.106134, -2.179534, 0), App.Vector(6.1411, -2.196798, 0), App.Vector(6.173163, -2.214875, 0), App.Vector(6.201636, -2.23462, 0), App.Vector(6.227219, -2.2552, 0), App.Vector(6.250232, -2.276204, 0), App.Vector(6.269675, -2.298819, 0), App.Vector(6.285891, -2.322405, 0), App.Vector(6.299252, -2.346743, 0), App.Vector(6.308868, -2.372106, 0), App.Vector(6.31561, -2.398094, 0), App.Vector(6.318651, -2.424836, 0), App.Vector(6.31824, -2.452324, 0), App.Vector(6.314199, -2.480362, 0), App.Vector(6.307283, -2.509382, 0), App.Vector(6.300153, -2.528397, 0), App.Vector(6.296464, -2.538232, 0)], [4, 1, 1, 1, 1, 1, 1, 1, 1, 1, 1, 1, 1, 1, 1, 1, 4], [0, 1.327232906, 2.586252761, 3.758410819, 4.87299417, 5.922767675, 6.923100545, 7.872796287, 8.791289235, 9.679128699, 10.54281967, 11.400075767, 12.261537855, 13.129758006, 14.043550173, 14.988049182, 16], False, 3, [1, 1, 1, 1, 1, 1, 1, 1, 1, 1, 1, 1, 1, 1, 1, 1, 1, 1, 1], False), False)
sketch3.addGeometry(Part.BSplineCurve([App.Vector(6.431126, -2.582219, 0), App.Vector(6.43738, -2.567969, 0), App.Vector(6.449307, -2.540792, 0), App.Vector(6.473397, -2.505153, 0), App.Vector(6.500443, -2.47539, 0), App.Vector(6.531914, -2.453001, 0), App.Vector(6.565775, -2.436089, 0), App.Vector(6.602141, -2.425482, 0), App.Vector(6.640287, -2.419521, 0), App.Vector(6.680526, -2.419401, 0), App.Vector(6.722503, -2.424259, 0), App.Vector(6.76616, -2.433393, 0), App.Vector(6.811612, -2.445898, 0), App.Vector(6.84164, -2.45769, 0), App.Vector(6.857105, -2.463763, 0)], [4, 1, 1, 1, 1, 1, 1, 1, 1, 1, 1, 1, 4], [0, 1.111638409, 2.120048397, 3.064373163, 3.973918209, 4.867202445, 5.761197764, 6.673765258, 7.621895543, 8.631271301, 9.692730955, 10.811700222, 12], False, 3, [1, 1, 1, 1, 1, 1, 1, 1, 1, 1, 1, 1, 1, 1, 1], False), False)
sketch3.addGeometry(Part.BSplineCurve([App.Vector(6.676913, -2.971157, 0), App.Vector(6.659915, -2.964011, 0), App.Vector(6.626932, -2.950146, 0), App.Vector(6.581526, -2.924879, 0), App.Vector(6.540722, -2.897825, 0), App.Vector(6.505463, -2.868147, 0), App.Vector(6.474776, -2.837089, 0), App.Vector(6.450881, -2.803478, 0), App.Vector(6.431767, -2.768827, 0), App.Vector(6.419016, -2.73245, 0), App.Vector(6.412374, -2.695177, 0), App.Vector(6.411919, -2.657349, 0), App.Vector(6.418197, -2.619291, 0), App.Vector(6.426767, -2.594718, 0), App.Vector(6.431126, -2.582219, 0)], [4, 1, 1, 1, 1, 1, 1, 1, 1, 1, 1, 1, 4], [0, 1.284784317, 2.492918005, 3.617159611, 4.693040781, 5.70147613, 6.652238095, 7.559056451, 8.452472812, 9.32678132, 10.187742238, 11.078228249, 12], False, 3, [1, 1, 1, 1, 1, 1, 1, 1, 1, 1, 1, 1, 1, 1, 1], False), False)
sketch3.addGeometry(Part.BSplineCurve([App.Vector(7.102121, -2.85463, 0), App.Vector(7.096642, -2.867002, 0), App.Vector(7.085959, -2.891126, 0), App.Vector(7.06522, -2.923784, 0), App.Vector(7.040329, -2.951102, 0), App.Vector(7.012848, -2.974339, 0), App.Vector(6.981533, -2.992349, 0), App.Vector(6.946479, -3.00472, 0), App.Vector(6.907967, -3.011912, 0), App.Vector(6.866226, -3.014005, 0), App.Vector(6.821805, -3.011325, 0), App.Vector(6.775225, -3.002809, 0), App.Vector(6.726404, -2.989715, 0), App.Vector(6.693796, -2.977487, 0), App.Vector(6.676913, -2.971157, 0)], [4, 1, 1, 1, 1, 1, 1, 1, 1, 1, 1, 1, 4], [0, 0.974103022, 1.899471894, 2.772164063, 3.627613838, 4.482762416, 5.359185734, 6.293328698, 7.295672438, 8.363311999, 9.492211638, 10.701574354, 12], False, 3, [1, 1, 1, 1, 1, 1, 1, 1, 1, 1, 1, 1, 1, 1, 1], False), False)
sketch3.addGeometry(Part.BSplineCurve([App.Vector(6.857105, -2.463763, 0), App.Vector(6.870917, -2.469565, 0), App.Vector(6.897774, -2.480848, 0), App.Vector(6.935987, -2.499125, 0), App.Vector(6.970405, -2.518943, 0), App.Vector(7.001418, -2.539331, 0), App.Vector(7.029073, -2.560685, 0), App.Vector(7.053418, -2.58284, 0), App.Vector(7.074013, -2.606196, 0), App.Vector(7.091347, -2.630248, 0), App.Vector(7.104742, -2.655543, 0), App.Vector(7.115499, -2.681394, 0), App.Vector(7.122019, -2.708473, 0), App.Vector(7.125091, -2.736217, 0), App.Vector(7.124652, -2.764856, 0), App.Vector(7.120679, -2.794217, 0), App.Vector(7.113365, -2.824508, 0), App.Vector(7.105936, -2.844409, 0), App.Vector(7.102121, -2.85463, 0)], [4, 1, 1, 1, 1, 1, 1, 1, 1, 1, 1, 1, 1, 1, 1, 1, 4], [0, 1.369390652, 2.662990204, 3.869043802, 4.997341485, 6.053299299, 7.060134295, 8.00140078, 8.895285223, 9.7632772, 10.612593574, 11.448125692, 12.299880067, 13.158262981, 14.059540116, 15.003446494, 16], False, 3, [1, 1, 1, 1, 1, 1, 1, 1, 1, 1, 1, 1, 1, 1, 1, 1, 1, 1, 1], False), False)
sketch3.addConstraint(Sketcher.Constraint("Block", 0))
sketch3.addConstraint(Sketcher.Constraint("Block", 1))
sketch3.addConstraint(Sketcher.Constraint("Block", 2))
sketch3.addConstraint(Sketcher.Constraint("Block", 3))
sketch3.addConstraint(Sketcher.Constraint("Block", 4))
sketch3.addConstraint(Sketcher.Constraint("Block", 5))
sketch3.addConstraint(Sketcher.Constraint("Block", 6))
sketch3.addConstraint(Sketcher.Constraint("Block", 7))
sketch3.addConstraint(Sketcher.Constraint("Block", 13))
sketch3.addConstraint(Sketcher.Constraint("Block", 14))
sketch3.addConstraint(Sketcher.Constraint("Block", 15))
sketch3.addConstraint(Sketcher.Constraint("Block", 16))
sketch3.addConstraint(Sketcher.Constraint("Block", 18))
sketch3.addConstraint(Sketcher.Constraint("Block", 19))
sketch3.addConstraint(Sketcher.Constraint("Block", 20))
sketch3.addConstraint(Sketcher.Constraint("Block", 21))
sketch3.addConstraint(Sketcher.Constraint("Block", 22))
sketch3.addConstraint(Sketcher.Constraint("Block", 23))
sketch3.addConstraint(Sketcher.Constraint("Block", 24))
sketch3.addConstraint(Sketcher.Constraint("Block", 25))
sketch3.addConstraint(Sketcher.Constraint("Block", 26))
sketch3.addConstraint(Sketcher.Constraint("Block", 27))
sketch3.addConstraint(Sketcher.Constraint("Block", 28))
sketch3.addConstraint(Sketcher.Constraint("Block", 29))
sketch3.addConstraint(Sketcher.Constraint("Coincident", 8, 2, 9, 1))
sketch3.addConstraint(Sketcher.Constraint("Coincident", 9, 2, 10, 1))
sketch3.addConstraint(Sketcher.Constraint("Coincident", 10, 2, 11, 1))
sketch3.addConstraint(Sketcher.Constraint("Coincident", 11, 2, 8, 1))
sketch3.addConstraint(Sketcher.Constraint("Coincident", 12, 2, 13, 2))
sketch3.addConstraint(Sketcher.Constraint("Coincident", 16, 1, 17, 1))
sketch3.addConstraint(Sketcher.Constraint("Coincident", 17, 2, 18, 2))
sketch3.addConstraint(Sketcher.Constraint("Coincident", 21, 1, 12, 1))
sketch3.addConstraint(Sketcher.Constraint("Parallel", 8, 10))
sketch3.addConstraint(Sketcher.Constraint("Parallel", 9, 11))
sketch3.addConstraint(Sketcher.Constraint("DistanceX", -1, 1, 8, 2, Q("7.162361 mm")))
sketch3.addConstraint(Sketcher.Constraint("DistanceX", -1, 1, 9, 2, Q("7.246091 mm")))
sketch3.addConstraint(Sketcher.Constraint("DistanceY", 9, 2, -1, 1, Q("1.604729 mm")))
sketch3.addConstraint(Sketcher.Constraint("DistanceX", -1, 1, 10, 2, Q("7.628469 mm")))
sketch3.addConstraint(Sketcher.Constraint("DistanceY", 10, 2, -1, 1, Q("1.69849 mm")))
sketch3.addConstraint(Sketcher.Constraint("Distance", 9, Q("0.350844 mm")))
pocket2 = doc.addObject("PartDesign::Pocket", "Pocket001")
body.addObject(pocket2)
pocket2.Profile = sketch3
pocket2.Length = 0.2
pocket2.Reversed = True

doc.recompute()
